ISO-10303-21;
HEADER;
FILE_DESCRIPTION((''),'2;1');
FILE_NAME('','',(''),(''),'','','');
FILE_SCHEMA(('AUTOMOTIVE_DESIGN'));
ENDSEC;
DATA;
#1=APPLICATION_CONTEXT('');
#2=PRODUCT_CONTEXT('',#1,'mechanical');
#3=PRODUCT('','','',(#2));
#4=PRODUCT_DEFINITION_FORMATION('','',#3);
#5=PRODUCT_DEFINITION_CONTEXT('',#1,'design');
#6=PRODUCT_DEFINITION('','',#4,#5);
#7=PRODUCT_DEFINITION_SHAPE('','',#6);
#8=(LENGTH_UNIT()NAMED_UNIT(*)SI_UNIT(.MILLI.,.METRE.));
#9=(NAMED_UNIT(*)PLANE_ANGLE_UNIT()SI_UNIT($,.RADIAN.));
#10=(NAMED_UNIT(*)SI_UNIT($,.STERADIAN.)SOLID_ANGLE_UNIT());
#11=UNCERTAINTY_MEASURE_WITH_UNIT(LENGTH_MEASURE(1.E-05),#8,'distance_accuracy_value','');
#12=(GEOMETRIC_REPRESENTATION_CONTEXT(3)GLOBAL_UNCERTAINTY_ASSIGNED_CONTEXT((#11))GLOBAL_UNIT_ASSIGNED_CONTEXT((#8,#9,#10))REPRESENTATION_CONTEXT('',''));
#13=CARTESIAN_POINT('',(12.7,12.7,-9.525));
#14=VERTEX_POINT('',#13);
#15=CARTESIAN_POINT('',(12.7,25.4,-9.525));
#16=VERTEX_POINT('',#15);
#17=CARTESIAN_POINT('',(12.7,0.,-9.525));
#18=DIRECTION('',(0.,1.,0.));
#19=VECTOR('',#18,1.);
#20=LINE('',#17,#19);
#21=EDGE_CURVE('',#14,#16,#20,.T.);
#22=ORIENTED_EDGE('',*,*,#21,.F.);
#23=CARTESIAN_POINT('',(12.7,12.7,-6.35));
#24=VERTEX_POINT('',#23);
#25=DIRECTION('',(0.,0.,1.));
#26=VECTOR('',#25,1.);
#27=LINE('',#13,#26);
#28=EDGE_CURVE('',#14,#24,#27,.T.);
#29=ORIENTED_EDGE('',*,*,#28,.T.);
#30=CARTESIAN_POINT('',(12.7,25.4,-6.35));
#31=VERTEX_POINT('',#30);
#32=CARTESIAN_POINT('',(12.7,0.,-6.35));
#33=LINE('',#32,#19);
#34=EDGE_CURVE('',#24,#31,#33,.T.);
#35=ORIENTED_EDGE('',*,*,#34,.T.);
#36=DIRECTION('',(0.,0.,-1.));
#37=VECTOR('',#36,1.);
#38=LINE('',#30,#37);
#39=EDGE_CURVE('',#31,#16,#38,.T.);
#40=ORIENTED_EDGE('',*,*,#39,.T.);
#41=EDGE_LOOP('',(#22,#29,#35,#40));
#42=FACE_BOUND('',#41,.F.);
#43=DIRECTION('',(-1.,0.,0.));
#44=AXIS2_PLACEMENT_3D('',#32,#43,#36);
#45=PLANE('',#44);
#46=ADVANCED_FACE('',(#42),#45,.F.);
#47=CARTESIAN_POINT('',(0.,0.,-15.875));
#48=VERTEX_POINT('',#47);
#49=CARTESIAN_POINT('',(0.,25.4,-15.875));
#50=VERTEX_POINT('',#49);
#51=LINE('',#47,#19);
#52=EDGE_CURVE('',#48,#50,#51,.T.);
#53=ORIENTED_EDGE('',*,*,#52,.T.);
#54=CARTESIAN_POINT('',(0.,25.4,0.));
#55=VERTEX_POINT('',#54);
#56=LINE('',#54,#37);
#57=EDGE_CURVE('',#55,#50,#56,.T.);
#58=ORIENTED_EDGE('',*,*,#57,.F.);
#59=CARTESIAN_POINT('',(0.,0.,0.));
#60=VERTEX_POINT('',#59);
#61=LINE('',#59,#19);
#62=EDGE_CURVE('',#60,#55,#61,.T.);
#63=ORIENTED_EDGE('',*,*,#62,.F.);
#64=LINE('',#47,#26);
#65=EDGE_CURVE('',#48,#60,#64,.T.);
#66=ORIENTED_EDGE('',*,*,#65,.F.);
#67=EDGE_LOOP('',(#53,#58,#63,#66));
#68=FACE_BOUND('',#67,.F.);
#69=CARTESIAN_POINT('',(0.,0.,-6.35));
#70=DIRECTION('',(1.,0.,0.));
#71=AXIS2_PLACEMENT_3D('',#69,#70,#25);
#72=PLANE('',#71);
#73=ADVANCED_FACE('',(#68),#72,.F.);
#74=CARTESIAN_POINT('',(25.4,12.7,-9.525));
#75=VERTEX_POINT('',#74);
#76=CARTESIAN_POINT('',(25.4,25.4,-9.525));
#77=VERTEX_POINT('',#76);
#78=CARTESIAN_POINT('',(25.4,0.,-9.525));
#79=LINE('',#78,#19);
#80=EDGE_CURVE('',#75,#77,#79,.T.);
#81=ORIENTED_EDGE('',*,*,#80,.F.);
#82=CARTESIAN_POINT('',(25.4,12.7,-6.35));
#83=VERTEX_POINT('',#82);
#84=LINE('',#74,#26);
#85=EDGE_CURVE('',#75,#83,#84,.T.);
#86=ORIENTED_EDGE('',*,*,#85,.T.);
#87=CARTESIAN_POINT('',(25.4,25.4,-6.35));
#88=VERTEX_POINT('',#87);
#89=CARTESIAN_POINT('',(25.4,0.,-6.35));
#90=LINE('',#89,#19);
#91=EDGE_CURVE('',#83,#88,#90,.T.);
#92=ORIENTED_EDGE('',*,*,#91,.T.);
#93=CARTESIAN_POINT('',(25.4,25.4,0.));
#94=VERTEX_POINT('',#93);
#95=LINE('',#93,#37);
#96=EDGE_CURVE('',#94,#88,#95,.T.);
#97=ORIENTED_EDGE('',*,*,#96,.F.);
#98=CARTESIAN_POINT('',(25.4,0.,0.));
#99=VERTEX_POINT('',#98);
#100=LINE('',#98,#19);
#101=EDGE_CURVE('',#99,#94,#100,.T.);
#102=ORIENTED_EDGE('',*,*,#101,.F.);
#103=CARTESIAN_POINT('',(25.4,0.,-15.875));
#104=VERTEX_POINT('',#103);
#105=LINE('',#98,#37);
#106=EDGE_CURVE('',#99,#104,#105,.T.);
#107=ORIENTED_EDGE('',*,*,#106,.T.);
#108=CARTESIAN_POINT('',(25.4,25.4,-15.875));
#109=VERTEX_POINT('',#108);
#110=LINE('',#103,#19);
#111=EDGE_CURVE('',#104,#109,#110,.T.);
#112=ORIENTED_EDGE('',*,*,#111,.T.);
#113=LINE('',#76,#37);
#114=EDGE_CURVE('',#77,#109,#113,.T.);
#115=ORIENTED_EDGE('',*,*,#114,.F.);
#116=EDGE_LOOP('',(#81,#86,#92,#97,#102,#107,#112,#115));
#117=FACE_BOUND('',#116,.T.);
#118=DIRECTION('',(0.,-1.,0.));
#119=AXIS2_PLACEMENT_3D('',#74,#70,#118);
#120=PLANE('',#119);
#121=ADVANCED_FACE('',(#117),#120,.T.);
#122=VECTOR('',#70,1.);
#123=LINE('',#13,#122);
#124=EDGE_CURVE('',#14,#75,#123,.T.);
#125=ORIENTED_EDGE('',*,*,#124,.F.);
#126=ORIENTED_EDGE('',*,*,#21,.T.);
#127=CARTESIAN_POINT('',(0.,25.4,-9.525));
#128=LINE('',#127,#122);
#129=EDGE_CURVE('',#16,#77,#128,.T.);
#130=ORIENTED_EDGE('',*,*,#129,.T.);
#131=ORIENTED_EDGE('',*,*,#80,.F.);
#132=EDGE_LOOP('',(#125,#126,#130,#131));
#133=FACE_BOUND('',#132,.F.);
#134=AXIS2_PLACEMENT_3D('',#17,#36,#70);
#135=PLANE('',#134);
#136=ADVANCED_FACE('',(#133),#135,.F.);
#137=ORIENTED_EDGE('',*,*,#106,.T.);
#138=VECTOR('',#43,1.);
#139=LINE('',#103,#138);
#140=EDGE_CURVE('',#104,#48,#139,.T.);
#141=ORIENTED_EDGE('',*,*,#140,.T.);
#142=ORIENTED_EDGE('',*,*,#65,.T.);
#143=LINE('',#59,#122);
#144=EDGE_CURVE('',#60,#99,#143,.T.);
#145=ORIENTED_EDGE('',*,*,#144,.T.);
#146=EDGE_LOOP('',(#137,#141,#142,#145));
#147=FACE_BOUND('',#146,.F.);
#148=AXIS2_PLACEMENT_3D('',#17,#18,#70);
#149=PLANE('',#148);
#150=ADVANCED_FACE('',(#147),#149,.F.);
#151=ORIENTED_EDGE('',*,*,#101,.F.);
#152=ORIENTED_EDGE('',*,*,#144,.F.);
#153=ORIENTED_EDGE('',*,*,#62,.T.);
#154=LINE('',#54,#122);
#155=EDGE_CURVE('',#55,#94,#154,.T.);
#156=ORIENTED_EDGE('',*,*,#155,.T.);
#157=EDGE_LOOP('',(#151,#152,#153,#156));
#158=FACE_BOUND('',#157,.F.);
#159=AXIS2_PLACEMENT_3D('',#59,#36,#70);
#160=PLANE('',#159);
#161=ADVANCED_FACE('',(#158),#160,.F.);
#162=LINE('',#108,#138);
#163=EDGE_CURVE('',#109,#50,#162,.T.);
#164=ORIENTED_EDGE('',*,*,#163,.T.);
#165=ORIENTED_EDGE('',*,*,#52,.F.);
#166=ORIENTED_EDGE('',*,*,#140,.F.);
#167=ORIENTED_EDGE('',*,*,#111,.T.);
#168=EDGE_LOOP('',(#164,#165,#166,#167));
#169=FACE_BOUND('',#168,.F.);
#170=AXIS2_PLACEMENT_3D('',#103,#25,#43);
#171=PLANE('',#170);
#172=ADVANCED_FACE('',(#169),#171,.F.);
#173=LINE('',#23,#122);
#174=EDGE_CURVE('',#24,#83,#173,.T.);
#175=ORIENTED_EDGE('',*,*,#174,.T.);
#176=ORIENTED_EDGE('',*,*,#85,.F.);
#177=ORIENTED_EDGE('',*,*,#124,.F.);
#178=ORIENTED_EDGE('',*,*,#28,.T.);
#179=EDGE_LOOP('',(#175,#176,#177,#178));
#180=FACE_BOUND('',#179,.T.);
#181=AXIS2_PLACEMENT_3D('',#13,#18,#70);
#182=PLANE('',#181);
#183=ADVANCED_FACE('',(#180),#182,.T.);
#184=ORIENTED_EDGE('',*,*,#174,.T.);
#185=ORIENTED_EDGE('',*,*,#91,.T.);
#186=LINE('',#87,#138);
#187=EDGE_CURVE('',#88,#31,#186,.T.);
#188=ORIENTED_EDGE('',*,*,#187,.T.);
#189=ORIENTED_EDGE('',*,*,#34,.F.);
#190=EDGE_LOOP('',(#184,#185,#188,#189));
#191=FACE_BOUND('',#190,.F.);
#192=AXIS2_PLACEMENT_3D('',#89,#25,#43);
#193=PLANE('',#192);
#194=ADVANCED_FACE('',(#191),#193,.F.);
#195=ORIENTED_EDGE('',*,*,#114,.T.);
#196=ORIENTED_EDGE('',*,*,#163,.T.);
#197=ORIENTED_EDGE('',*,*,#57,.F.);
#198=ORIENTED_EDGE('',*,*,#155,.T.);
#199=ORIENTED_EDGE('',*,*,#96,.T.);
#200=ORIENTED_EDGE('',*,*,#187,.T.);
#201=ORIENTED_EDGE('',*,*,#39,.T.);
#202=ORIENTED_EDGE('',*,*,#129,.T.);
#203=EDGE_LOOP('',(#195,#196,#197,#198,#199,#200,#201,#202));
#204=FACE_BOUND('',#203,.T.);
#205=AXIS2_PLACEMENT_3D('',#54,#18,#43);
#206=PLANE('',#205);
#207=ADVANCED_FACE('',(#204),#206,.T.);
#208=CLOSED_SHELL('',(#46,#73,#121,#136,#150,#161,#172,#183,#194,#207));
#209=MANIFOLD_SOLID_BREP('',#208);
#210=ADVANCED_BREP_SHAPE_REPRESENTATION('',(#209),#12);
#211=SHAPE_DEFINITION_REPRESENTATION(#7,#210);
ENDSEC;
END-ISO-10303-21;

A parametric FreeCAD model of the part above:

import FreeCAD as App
import Part
import Sketcher
from FreeCAD import Vector
Q = App.Units.Quantity


def add_polygon(sketch, points):
    """Adds a closed chain of lines whose ends are joined by coincident constraints."""
    first, n = sketch.GeometryCount, len(points)
    for a, b in zip(points, points[1:] + points[:1]):
        sketch.addGeometry(Part.LineSegment(App.Vector(*a, 0), App.Vector(*b, 0)), False)
    for i in range(n):
        sketch.addConstraint(Sketcher.Constraint("Coincident", first + i, 2, first + (i + 1) % n, 1))

doc = App.newDocument("Part")
body = doc.addObject("PartDesign::Body", "Body")

# Sketch on XZ plane
sketch1 = body.newObject("Sketcher::SketchObject", "Sketch")
sketch1.AttachmentSupport = (doc.getObject("XZ_Plane"), [""])
sketch1.MapMode = "FlatFace"
add_polygon(sketch1, [(0, 0), (25.4, 0), (25.4, -6.35), (12.7, -6.35), (12.7, -9.525), (25.4, -9.525), (25.4, -15.875), (0, -15.875)])  # lines 0-7
sketch1.addConstraint([
    Sketcher.Constraint("Horizontal", 0),
    Sketcher.Constraint("Vertical", 1),
    Sketcher.Constraint("Horizontal", 2),
    Sketcher.Constraint("Vertical", 3),
    Sketcher.Constraint("Horizontal", 4),
    Sketcher.Constraint("Vertical", 5),
    Sketcher.Constraint("Horizontal", 6),
    Sketcher.Constraint("Vertical", 7),
    Sketcher.Constraint("Coincident", 7, 2, -1, 1),
    Sketcher.Constraint("Vertical", 1, 2, 4, 2),
    Sketcher.Constraint("Equal", 1, 5),
    Sketcher.Constraint("DistanceX", 0, 1, 0, 2, Q("1 in")),
    Sketcher.Constraint("DistanceX", 2, 2, 2, 1, Q("0.5 in")),
    Sketcher.Constraint("DistanceY", 1, 2, 1, 1, Q("0.25 in")),
    Sketcher.Constraint("DistanceY", 3, 2, 3, 1, Q("0.125 in")),
])
pad1 = body.newObject("PartDesign::Pad", "Pad")
pad1.Profile = sketch1
pad1.Length = Q("1 in")
pad1.Reversed = True

# Sketch on XY plane
sketch2 = body.newObject("Sketcher::SketchObject", "Sketch001")
sketch2.AttachmentSupport = (doc.getObject("XY_Plane"), [""])
sketch2.MapMode = "FlatFace"
sketch2.AttachmentOffset = App.Placement(Vector(0, 0, -0.375 * 25.4), App.Rotation())
add_polygon(sketch2, [(12.7, 12.7), (12.7, 0), (25.4, 0), (25.4, 12.7)])  # lines 0-3
sketch2.addConstraint([
    Sketcher.Constraint("Vertical", 0),
    Sketcher.Constraint("Horizontal", 1),
    Sketcher.Constraint("Vertical", 2),
    Sketcher.Constraint("Horizontal", 3),
    Sketcher.Constraint("PointOnObject", 0, 2, -1),
    Sketcher.Constraint("Equal", 3, 0),
    Sketcher.Constraint("DistanceX", 1, 1, 1, 2, Q("0.5 in")),
    Sketcher.Constraint("DistanceX", -1, 1, 0, 2, Q("0.5 in")),
])
pad2 = body.newObject("PartDesign::Pad", "Pad001")
pad2.Profile = sketch2
pad2.Length = Q("0.125 in")

doc.recompute()
